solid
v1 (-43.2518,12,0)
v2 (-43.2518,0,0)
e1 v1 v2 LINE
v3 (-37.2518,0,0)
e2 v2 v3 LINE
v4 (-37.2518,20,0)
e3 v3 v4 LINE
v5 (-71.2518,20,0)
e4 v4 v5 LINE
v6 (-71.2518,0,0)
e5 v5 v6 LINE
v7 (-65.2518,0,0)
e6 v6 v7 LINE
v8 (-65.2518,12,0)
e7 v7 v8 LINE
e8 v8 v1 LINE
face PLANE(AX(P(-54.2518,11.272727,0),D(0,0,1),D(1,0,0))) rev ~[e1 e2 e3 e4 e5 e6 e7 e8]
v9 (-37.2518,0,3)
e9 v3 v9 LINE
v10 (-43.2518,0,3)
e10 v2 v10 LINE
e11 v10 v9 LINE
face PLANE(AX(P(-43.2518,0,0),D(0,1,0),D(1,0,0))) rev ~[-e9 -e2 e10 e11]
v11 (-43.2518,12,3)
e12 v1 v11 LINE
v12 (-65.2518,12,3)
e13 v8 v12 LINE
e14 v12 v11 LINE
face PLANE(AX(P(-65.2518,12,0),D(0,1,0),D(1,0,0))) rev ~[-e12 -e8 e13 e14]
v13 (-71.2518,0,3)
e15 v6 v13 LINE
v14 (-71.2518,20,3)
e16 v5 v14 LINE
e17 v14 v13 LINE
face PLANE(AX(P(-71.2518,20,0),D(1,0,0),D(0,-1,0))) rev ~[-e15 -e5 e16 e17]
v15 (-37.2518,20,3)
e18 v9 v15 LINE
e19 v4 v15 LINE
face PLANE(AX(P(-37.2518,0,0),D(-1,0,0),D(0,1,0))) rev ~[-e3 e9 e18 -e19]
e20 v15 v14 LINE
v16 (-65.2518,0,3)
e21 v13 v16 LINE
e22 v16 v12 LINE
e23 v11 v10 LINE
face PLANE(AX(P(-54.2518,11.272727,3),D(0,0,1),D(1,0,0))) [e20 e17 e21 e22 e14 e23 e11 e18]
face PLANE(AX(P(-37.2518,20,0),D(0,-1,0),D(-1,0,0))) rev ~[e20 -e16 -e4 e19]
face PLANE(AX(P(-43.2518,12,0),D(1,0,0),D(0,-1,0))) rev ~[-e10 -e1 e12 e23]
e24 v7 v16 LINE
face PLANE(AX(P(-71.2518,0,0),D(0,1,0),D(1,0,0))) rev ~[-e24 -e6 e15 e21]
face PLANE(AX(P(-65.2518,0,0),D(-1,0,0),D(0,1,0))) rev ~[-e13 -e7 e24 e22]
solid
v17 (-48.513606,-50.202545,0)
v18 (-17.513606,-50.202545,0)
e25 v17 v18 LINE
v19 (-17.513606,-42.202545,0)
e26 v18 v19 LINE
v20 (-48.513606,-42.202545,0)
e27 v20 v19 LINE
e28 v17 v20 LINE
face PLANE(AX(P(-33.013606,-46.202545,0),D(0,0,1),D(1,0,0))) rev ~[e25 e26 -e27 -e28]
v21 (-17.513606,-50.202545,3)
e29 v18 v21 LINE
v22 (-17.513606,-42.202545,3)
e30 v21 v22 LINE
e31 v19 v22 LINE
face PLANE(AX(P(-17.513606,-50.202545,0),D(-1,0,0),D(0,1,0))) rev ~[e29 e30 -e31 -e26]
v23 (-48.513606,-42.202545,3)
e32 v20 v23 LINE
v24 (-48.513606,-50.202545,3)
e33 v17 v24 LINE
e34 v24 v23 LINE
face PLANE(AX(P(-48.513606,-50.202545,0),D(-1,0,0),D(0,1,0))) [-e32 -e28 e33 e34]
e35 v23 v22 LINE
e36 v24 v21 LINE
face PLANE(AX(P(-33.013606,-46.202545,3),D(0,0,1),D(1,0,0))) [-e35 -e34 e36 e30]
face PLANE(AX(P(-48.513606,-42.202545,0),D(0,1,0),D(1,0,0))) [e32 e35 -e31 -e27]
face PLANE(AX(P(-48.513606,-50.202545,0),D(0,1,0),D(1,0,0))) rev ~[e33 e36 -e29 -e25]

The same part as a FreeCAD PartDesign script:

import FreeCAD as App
import Part
import Sketcher
Q = App.Units.Quantity

doc = App.newDocument("Part")
body = doc.addObject("PartDesign::Body", "Body")
body.AllowCompound = True

# Sketch on XY plane
sketch1 = body.newObject("Sketcher::SketchObject", "Sketch")
sketch1.AttachmentSupport = (doc.getObject("XY_Plane"), [""])
sketch1.MapMode = "FlatFace"
sketch1.addGeometry([
    Part.LineSegment(App.Vector(-37.2518, 20, 0), App.Vector(-71.2518, 20, 0)),  # 0
    Part.LineSegment(App.Vector(-71.2518, 20, 0), App.Vector(-71.2518, 0, 0)),  # 1
    Part.LineSegment(App.Vector(-71.2518, 0, 0), App.Vector(-65.2518, 0, 0)),  # 2
    Part.LineSegment(App.Vector(-65.2518, 0, 0), App.Vector(-65.2518, 12, 0)),  # 3
    Part.LineSegment(App.Vector(-65.2518, 12, 0), App.Vector(-43.2518, 12, 0)),  # 4
    Part.LineSegment(App.Vector(-43.2518, 12, 0), App.Vector(-43.2518, 0, 0)),  # 5
    Part.LineSegment(App.Vector(-43.2518, 0, 0), App.Vector(-37.2518, 0, 0)),  # 6
    Part.LineSegment(App.Vector(-37.2518, 0, 0), App.Vector(-37.2518, 20, 0)),  # 7
    Part.LineSegment(App.Vector(-48.513606, -42.202545, 0), App.Vector(-48.513606, -50.202545, 0)),  # 8
    Part.LineSegment(App.Vector(-48.513606, -50.202545, 0), App.Vector(-17.513606, -50.202545, 0)),  # 9
    Part.LineSegment(App.Vector(-17.513606, -50.202545, 0), App.Vector(-17.513606, -42.202545, 0)),  # 10
    Part.LineSegment(App.Vector(-17.513606, -42.202545, 0), App.Vector(-48.513606, -42.202545, 0)),  # 11
], False)
sketch1.addConstraint([
    Sketcher.Constraint("Coincident", 0, 2, 1, 1),
    Sketcher.Constraint("Coincident", 1, 2, 2, 1),
    Sketcher.Constraint("Coincident", 2, 2, 3, 1),
    Sketcher.Constraint("Coincident", 3, 2, 4, 1),
    Sketcher.Constraint("Coincident", 4, 2, 5, 1),
    Sketcher.Constraint("Coincident", 5, 2, 6, 1),
    Sketcher.Constraint("Coincident", 6, 2, 7, 1),
    Sketcher.Constraint("Coincident", 7, 2, 0, 1),
    Sketcher.Constraint("Coincident", 8, 2, 9, 1),
    Sketcher.Constraint("Coincident", 9, 2, 10, 1),
    Sketcher.Constraint("Coincident", 10, 2, 11, 1),
    Sketcher.Constraint("Coincident", 11, 2, 8, 1),
    Sketcher.Constraint("Horizontal", 0),
    Sketcher.Constraint("Vertical", 1),
    Sketcher.Constraint("Horizontal", 2),
    Sketcher.Constraint("Vertical", 3),
    Sketcher.Constraint("Horizontal", 4),
    Sketcher.Constraint("Vertical", 5),
    Sketcher.Constraint("Horizontal", 6),
    Sketcher.Constraint("Vertical", 7),
    Sketcher.Constraint("Vertical", 8),
    Sketcher.Constraint("Horizontal", 9),
    Sketcher.Constraint("Vertical", 10),
    Sketcher.Constraint("Horizontal", 11),
    Sketcher.Constraint("PointOnObject", 1, 2, -1),
    Sketcher.Constraint("PointOnObject", 5, 2, -1),
    Sketcher.Constraint("Equal", 2, 6),
    Sketcher.Constraint("DistanceX", 0, 2, 0, 1, Q("34 mm")),
    Sketcher.Constraint("DistanceX", 2, 1, 2, 2, Q("6 mm")),
    Sketcher.Constraint("DistanceX", 9, 1, 9, 2, Q("31 mm")),
    Sketcher.Constraint("DistanceY", 1, 2, 1, 1, Q("20 mm")),
    Sketcher.Constraint("DistanceY", 3, 1, 3, 2, Q("12 mm")),
    Sketcher.Constraint("DistanceY", 8, 2, 8, 1, Q("8 mm")),
    Sketcher.Constraint("DistanceX", 0, 2, -1, 1, Q("71.2518 mm")),
    Sketcher.Constraint("DistanceX", 8, 2, -1, 1, Q("48.513606 mm")),
    Sketcher.Constraint("DistanceY", 8, 2, -1, 1, Q("50.202545 mm")),
])
pad1 = body.newObject("PartDesign::Pad", "Pad")
pad1.Profile = sketch1
pad1.Length = 3

doc.recompute()
